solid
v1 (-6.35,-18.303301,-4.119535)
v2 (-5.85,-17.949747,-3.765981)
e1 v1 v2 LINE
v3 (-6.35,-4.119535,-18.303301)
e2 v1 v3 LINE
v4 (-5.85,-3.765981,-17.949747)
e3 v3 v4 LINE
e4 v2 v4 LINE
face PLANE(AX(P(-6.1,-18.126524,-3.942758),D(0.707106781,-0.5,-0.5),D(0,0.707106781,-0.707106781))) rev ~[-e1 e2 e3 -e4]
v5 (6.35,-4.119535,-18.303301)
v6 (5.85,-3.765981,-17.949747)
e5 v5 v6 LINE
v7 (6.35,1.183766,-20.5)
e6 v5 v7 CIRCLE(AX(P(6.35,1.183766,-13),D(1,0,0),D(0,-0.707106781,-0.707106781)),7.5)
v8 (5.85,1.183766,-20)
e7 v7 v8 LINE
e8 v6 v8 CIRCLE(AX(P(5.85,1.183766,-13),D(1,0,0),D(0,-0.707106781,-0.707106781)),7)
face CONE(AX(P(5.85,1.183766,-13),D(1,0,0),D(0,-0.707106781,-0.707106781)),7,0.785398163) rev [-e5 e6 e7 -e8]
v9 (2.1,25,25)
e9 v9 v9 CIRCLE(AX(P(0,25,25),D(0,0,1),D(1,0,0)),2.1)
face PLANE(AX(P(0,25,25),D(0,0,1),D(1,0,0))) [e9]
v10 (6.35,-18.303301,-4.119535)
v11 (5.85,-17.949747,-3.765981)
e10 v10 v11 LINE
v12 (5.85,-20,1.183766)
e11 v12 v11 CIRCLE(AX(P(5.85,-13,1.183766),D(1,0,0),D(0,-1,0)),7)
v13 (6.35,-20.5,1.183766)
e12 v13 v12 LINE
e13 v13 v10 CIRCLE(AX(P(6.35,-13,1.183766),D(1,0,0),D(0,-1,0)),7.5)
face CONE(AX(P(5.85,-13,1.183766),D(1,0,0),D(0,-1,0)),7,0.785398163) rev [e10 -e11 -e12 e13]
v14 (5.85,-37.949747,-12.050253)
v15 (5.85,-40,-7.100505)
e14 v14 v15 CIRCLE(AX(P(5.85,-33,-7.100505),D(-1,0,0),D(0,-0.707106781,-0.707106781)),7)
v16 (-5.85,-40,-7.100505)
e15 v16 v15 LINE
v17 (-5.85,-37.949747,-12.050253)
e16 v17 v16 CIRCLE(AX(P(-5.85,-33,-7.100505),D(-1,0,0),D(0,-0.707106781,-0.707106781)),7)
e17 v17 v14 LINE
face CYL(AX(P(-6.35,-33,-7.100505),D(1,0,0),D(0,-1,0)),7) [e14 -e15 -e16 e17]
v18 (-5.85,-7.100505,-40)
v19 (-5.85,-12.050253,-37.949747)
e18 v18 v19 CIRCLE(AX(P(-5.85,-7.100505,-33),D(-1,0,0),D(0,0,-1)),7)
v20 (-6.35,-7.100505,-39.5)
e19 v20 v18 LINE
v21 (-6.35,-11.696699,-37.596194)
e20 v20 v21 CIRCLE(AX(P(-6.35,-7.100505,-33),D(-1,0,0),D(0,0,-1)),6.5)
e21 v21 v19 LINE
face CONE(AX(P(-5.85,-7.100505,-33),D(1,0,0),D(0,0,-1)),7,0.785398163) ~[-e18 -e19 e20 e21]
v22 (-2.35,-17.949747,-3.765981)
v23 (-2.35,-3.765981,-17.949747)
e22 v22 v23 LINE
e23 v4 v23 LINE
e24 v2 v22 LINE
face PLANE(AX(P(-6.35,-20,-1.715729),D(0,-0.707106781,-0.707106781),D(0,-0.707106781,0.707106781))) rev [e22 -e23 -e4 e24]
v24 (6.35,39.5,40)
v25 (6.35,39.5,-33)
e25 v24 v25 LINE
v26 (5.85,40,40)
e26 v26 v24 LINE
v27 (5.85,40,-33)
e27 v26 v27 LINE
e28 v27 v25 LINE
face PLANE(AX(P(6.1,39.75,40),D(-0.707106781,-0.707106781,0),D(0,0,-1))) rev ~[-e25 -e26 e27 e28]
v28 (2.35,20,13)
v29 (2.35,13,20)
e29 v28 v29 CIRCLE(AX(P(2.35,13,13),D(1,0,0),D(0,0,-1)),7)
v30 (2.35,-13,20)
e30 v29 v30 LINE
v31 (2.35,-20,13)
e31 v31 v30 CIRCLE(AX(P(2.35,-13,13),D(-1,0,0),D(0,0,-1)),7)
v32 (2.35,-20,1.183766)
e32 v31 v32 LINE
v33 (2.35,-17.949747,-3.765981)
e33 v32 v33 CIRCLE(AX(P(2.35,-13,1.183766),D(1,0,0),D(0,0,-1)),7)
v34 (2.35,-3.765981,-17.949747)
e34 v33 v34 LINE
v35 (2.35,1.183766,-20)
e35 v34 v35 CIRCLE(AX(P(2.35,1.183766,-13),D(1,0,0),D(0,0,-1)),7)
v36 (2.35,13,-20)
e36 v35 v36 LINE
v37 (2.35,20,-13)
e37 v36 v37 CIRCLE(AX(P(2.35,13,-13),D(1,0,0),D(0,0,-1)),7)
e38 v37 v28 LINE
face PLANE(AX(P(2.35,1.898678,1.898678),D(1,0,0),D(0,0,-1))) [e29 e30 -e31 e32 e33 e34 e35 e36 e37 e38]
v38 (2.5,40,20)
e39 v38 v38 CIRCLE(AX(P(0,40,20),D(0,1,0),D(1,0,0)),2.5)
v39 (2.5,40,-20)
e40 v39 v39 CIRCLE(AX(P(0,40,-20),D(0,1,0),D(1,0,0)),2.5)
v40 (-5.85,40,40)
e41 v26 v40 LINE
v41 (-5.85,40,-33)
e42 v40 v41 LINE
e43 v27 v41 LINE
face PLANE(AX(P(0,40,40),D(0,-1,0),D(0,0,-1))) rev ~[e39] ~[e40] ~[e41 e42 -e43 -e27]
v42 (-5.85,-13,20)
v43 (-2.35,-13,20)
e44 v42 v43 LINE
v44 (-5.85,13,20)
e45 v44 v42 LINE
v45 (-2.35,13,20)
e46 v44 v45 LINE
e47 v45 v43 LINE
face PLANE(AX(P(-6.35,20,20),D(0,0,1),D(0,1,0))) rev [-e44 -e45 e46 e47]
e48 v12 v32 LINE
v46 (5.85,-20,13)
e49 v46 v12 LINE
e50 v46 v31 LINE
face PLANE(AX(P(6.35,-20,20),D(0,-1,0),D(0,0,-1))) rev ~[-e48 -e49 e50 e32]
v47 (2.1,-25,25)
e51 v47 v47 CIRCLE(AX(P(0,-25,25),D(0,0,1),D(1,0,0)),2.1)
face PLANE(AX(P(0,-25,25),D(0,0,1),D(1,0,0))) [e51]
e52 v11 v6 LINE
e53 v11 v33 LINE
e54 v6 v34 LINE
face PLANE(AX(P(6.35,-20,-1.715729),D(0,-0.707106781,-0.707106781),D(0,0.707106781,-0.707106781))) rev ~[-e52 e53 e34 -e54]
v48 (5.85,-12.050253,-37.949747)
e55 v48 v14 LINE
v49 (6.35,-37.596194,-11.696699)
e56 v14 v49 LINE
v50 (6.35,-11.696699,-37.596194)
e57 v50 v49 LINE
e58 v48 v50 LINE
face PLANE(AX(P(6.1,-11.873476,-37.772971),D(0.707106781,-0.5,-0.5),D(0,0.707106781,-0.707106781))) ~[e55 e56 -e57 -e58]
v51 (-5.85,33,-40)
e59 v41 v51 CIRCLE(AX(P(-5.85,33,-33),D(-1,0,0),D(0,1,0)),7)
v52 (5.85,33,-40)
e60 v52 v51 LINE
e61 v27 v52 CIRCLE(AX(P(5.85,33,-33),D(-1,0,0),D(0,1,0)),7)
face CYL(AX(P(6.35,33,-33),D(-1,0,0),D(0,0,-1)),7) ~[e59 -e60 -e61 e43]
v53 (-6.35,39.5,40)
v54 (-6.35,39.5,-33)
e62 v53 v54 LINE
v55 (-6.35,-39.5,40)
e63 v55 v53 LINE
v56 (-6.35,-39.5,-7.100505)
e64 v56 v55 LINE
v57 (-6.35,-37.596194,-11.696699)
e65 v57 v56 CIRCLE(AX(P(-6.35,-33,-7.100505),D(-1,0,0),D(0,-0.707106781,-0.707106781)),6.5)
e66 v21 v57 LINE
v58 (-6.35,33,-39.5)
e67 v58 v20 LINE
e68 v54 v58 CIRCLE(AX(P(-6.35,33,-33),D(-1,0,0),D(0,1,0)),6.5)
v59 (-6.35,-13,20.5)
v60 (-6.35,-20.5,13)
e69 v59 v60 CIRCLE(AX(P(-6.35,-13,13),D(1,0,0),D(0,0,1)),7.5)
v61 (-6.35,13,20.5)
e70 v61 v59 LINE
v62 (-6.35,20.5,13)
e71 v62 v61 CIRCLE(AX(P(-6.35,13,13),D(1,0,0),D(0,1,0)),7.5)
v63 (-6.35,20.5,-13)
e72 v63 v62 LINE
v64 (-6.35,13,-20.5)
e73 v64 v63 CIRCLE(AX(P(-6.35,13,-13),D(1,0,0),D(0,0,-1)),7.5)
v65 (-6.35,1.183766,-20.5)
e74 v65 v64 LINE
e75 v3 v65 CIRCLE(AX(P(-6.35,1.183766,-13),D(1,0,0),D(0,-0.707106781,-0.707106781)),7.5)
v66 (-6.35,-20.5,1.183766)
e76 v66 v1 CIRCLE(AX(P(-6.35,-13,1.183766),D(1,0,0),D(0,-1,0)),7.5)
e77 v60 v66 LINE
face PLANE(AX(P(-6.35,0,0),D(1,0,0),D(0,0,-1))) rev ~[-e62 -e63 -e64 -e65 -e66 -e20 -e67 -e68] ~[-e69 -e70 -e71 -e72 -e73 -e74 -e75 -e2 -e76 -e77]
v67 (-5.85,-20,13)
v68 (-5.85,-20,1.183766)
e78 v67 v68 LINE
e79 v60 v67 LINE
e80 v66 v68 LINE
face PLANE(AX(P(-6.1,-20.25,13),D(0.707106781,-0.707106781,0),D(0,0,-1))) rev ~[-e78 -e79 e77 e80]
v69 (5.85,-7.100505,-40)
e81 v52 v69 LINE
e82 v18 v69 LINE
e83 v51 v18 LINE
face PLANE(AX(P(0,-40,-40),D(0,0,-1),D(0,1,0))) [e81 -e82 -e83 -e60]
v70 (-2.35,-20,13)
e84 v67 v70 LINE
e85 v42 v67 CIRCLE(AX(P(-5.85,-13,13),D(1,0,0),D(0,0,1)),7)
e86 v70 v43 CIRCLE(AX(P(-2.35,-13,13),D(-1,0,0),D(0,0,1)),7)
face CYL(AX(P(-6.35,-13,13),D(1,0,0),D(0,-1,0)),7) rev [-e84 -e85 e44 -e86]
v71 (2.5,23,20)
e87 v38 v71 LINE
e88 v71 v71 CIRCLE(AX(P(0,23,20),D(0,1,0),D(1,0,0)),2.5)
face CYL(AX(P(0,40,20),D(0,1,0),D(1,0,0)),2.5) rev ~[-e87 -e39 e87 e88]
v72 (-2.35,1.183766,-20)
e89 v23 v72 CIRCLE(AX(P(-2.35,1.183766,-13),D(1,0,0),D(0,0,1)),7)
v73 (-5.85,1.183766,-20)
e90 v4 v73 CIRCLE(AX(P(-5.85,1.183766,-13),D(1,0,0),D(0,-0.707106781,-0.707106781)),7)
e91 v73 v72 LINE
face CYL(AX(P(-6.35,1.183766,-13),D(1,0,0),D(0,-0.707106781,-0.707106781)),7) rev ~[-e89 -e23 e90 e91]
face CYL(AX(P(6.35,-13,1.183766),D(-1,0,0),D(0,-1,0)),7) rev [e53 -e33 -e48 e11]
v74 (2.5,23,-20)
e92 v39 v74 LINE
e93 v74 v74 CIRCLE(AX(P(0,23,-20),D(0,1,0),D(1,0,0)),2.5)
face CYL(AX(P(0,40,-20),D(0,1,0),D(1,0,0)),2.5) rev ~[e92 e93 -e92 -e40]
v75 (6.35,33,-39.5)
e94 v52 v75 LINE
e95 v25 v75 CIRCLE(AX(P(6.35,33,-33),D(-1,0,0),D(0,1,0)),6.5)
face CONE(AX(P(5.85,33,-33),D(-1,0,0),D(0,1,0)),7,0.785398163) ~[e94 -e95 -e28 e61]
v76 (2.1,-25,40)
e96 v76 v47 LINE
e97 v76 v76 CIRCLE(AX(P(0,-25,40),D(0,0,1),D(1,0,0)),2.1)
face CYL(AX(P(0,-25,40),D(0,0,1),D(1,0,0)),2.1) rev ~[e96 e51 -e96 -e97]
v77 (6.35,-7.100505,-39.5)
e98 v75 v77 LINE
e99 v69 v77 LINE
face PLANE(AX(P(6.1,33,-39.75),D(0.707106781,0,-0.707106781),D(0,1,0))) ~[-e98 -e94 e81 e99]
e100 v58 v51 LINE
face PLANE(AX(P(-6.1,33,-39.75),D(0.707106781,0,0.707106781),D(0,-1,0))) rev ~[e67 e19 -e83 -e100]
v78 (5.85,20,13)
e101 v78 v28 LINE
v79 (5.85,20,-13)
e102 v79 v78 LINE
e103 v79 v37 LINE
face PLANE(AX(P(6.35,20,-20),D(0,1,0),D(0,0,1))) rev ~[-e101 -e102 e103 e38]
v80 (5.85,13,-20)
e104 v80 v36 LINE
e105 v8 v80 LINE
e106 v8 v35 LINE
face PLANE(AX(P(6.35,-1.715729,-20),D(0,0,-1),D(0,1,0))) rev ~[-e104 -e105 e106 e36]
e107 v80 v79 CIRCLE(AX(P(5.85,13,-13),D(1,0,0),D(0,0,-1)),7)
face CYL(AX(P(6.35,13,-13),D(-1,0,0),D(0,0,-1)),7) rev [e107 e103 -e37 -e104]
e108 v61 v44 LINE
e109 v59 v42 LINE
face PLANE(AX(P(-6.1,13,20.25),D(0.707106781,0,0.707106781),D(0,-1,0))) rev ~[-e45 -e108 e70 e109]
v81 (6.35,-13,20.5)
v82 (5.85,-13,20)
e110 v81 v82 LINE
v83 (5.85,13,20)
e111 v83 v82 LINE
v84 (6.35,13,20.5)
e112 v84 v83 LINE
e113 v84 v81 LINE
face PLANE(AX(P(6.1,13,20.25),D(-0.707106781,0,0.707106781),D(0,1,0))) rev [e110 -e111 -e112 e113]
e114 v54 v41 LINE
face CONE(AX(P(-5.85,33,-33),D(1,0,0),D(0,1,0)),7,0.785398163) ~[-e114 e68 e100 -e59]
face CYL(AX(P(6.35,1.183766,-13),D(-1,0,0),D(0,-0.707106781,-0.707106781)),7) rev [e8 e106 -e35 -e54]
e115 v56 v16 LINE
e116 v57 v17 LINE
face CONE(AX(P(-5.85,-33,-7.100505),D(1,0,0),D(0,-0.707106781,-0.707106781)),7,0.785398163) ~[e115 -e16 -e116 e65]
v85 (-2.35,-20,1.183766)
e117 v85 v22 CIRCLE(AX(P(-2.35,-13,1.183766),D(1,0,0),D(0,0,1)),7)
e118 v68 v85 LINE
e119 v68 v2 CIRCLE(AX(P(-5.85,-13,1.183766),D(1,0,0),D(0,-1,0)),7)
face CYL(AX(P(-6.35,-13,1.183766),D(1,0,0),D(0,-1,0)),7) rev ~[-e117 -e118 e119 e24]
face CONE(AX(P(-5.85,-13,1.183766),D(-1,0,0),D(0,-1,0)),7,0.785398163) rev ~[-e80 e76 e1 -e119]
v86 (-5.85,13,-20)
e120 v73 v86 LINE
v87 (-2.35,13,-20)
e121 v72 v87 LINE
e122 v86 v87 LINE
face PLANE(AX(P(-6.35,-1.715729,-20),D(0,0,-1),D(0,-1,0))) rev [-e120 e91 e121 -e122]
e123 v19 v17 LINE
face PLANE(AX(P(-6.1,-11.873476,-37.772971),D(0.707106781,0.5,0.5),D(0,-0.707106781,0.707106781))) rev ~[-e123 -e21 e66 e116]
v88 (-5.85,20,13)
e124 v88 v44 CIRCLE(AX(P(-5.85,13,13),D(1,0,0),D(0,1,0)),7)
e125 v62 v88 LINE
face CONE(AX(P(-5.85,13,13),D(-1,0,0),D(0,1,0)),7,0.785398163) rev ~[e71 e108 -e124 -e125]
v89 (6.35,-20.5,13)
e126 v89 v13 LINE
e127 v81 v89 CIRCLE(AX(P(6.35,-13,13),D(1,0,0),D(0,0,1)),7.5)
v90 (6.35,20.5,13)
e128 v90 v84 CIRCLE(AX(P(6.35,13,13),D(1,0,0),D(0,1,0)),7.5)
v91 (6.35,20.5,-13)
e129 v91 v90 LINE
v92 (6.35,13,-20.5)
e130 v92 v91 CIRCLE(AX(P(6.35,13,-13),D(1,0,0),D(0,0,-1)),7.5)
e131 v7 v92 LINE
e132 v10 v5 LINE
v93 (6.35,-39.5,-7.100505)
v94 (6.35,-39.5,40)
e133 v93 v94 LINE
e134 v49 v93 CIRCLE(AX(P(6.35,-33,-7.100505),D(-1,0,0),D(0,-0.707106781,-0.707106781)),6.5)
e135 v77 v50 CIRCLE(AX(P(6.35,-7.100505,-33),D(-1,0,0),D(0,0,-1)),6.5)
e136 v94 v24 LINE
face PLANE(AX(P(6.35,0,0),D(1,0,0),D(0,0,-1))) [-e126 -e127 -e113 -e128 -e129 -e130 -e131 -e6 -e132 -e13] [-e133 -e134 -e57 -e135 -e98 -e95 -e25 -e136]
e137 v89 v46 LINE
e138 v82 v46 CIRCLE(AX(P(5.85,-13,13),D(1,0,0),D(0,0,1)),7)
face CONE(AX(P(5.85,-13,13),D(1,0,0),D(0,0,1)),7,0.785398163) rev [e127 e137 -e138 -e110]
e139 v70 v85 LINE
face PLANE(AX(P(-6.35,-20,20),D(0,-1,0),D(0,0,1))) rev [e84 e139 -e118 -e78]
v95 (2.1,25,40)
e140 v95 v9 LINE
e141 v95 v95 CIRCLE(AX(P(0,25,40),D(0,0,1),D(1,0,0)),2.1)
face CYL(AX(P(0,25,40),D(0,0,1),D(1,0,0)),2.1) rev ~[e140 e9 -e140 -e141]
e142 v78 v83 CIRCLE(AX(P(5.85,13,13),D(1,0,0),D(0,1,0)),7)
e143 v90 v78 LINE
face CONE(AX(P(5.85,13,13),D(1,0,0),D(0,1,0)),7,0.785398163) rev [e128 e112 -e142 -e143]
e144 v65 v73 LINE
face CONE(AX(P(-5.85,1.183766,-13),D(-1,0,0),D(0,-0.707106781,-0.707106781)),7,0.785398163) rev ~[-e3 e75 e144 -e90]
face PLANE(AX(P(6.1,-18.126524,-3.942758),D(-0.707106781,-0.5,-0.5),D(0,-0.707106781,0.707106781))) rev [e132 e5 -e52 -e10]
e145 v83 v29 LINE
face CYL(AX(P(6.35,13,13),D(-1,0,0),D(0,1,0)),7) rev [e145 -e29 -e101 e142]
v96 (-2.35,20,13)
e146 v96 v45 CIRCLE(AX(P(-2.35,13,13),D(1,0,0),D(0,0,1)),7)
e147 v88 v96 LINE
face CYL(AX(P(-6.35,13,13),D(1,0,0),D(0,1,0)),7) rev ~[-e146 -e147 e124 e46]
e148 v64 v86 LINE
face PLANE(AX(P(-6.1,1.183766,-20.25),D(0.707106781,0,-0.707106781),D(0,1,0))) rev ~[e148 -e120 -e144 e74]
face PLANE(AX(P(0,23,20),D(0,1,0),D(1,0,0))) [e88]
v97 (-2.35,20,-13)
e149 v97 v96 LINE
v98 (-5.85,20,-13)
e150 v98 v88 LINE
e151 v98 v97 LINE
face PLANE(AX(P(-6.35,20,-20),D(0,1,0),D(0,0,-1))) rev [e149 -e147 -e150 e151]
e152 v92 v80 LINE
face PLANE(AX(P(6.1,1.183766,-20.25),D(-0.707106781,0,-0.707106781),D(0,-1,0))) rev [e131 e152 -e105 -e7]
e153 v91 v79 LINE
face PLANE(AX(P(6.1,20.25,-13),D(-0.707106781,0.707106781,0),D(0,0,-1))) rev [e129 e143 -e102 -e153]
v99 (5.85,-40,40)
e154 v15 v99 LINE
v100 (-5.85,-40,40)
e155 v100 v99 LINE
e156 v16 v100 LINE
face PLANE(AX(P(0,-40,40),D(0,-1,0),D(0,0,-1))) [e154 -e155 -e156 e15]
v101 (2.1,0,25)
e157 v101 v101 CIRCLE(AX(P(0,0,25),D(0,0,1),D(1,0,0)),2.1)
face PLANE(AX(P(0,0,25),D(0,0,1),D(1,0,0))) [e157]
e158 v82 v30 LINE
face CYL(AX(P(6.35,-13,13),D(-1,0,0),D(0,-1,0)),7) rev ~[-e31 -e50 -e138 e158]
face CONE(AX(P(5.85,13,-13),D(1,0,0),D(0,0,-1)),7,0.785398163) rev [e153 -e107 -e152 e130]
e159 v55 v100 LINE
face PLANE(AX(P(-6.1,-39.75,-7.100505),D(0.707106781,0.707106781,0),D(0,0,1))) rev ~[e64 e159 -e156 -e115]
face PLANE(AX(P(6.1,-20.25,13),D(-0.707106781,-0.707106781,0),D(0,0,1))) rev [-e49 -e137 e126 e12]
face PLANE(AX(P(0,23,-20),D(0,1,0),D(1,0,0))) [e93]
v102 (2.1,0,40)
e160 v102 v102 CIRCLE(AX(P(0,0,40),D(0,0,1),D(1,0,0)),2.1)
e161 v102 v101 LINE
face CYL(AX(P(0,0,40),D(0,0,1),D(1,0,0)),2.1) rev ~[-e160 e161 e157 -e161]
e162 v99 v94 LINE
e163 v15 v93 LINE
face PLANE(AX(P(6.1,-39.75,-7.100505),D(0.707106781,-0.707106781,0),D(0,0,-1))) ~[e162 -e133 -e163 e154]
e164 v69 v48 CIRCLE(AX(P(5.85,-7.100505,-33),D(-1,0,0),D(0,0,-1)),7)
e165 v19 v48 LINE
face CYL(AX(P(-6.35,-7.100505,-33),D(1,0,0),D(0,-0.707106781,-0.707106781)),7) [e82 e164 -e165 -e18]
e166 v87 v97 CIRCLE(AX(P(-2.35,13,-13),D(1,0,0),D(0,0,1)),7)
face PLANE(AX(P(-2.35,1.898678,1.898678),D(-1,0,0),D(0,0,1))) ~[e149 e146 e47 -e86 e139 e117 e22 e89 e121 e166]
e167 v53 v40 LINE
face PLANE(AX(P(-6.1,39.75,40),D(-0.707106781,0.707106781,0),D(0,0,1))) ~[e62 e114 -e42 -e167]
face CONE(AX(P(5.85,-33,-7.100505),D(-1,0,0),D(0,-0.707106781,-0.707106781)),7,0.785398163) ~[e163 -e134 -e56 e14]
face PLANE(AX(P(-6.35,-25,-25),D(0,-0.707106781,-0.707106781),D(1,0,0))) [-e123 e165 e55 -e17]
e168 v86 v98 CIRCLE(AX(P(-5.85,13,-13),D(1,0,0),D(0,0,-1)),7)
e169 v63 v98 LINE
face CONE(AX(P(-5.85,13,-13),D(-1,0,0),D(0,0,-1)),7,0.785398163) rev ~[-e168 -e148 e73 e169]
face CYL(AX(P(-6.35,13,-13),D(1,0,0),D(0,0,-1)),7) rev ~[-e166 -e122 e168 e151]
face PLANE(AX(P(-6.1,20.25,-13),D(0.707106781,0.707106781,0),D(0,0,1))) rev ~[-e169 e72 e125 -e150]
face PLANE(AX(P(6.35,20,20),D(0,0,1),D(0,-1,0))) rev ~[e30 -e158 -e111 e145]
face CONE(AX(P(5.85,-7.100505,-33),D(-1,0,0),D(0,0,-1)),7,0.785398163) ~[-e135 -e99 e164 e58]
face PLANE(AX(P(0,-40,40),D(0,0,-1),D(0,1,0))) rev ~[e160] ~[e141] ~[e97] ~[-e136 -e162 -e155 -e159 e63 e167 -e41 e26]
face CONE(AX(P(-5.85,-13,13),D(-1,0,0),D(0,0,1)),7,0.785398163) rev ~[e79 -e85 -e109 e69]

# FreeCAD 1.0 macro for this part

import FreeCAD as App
import Part
import Sketcher

V = App.Vector


def edges_at(feature, points):
    """Names of the edges that pass closest to the given points."""
    edges = feature.Shape.Edges
    near = lambda p: min(range(len(edges)), key=lambda i: edges[i].distToShape(Part.Vertex(*p))[0])
    return sorted({f"Edge{near(p) + 1}" for p in points})


def add_polygon(sketch, points):
    """Adds a closed chain of lines whose ends are joined by coincident constraints."""
    first, n = sketch.GeometryCount, len(points)
    for a, b in zip(points, points[1:] + points[:1]):
        sketch.addGeometry(Part.LineSegment(App.Vector(*a, 0), App.Vector(*b, 0)), False)
    for i in range(n):
        sketch.addConstraint(Sketcher.Constraint("Coincident", first + i, 2, first + (i + 1) % n, 1))

doc = App.newDocument("Part")
body = doc.addObject("PartDesign::Body", "Body")

# Sketch on YZ plane
sketch1 = body.newObject("Sketcher::SketchObject", "Sketch")
sketch1.AttachmentSupport = (doc.getObject("YZ_Plane"), [""])
sketch1.MapMode = "FlatFace"
add_polygon(sketch1, [(40, 40), (-40, 40), (-40, -40), (40, -40)])  # lines 0-3
sketch1.addConstraint([
    Sketcher.Constraint("Horizontal", 0),
    Sketcher.Constraint("Vertical", 1),
    Sketcher.Constraint("Horizontal", 2),
    Sketcher.Constraint("Vertical", 3),
    Sketcher.Constraint("Symmetric", 0, 2, 2, 2, -1, 1),
    Sketcher.Constraint("Equal", 2, 1),
    Sketcher.Constraint("DistanceX", 0, 2, 0, 1, 80.0),
])
pad1 = body.newObject("PartDesign::Pad", "Pad")
pad1.Profile = sketch1
pad1.Length = 12.7
pad1.Midplane = True
doc.recompute()

chamfer = body.newObject("PartDesign::Chamfer", "Chamfer")
chamfer.Base = (pad1, edges_at(pad1, [(0, -40, -40)]))
chamfer.Size = 30

# Sketch on XZ plane
sketch2 = body.newObject("Sketcher::SketchObject", "Sketch001")
sketch2.AttachmentSupport = (doc.getObject("XZ_Plane"), [""])
sketch2.MapMode = "FlatFace"
sketch2.AttachmentOffset = App.Placement(V(0, 0, -40), App.Rotation())
sketch2.addGeometry([
    Part.Circle(V(0, -20, 0), V(0, 0, 1), 2.5),
    Part.Circle(V(0, 20, 0), V(0, 0, 1), 2.5),
], False)
sketch2.addConstraint([
    Sketcher.Constraint("Equal", 0, 1),
    Sketcher.Constraint("Symmetric", 0, 3, 1, 3, -1, 1),
    Sketcher.Constraint("PointOnObject", 0, 3, -2),
    Sketcher.Constraint("Diameter", 0, 5.0),
    Sketcher.Constraint("DistanceY", 0, 3, -1, 1, 20.0),
])
pocket1 = body.newObject("PartDesign::Pocket", "Pocket")
pocket1.Profile = sketch2
pocket1.Length = 17
pocket1.Reversed = True

# Sketch on XY plane
sketch3 = body.newObject("Sketcher::SketchObject", "Sketch002")
sketch3.AttachmentSupport = (doc.getObject("XY_Plane"), [""])
sketch3.MapMode = "FlatFace"
sketch3.AttachmentOffset = App.Placement(V(0, 0, 40), App.Rotation())
sketch3.addGeometry([
    Part.Circle(V(0, 25, 0), V(0, 0, 1), 2.1),
    Part.Circle(V(0, -25, 0), V(0, 0, 1), 2.1),
    Part.Circle(V(0, 0, 0), V(0, 0, 1), 2.1),
], False)
sketch3.addConstraint([
    Sketcher.Constraint("Coincident", 2, 3, -1, 1),
    Sketcher.Constraint("Equal", 0, 1),
    Sketcher.Constraint("Equal", 1, 2),
    Sketcher.Constraint("Symmetric", 0, 3, 1, 3, -1, 1),
    Sketcher.Constraint("PointOnObject", 0, 3, -2),
    Sketcher.Constraint("Diameter", 0, 4.2),
    Sketcher.Constraint("DistanceY", -1, 1, 0, 3, 25.0),
])
pocket2 = body.newObject("PartDesign::Pocket", "Pocket001")
pocket2.Profile = sketch3
pocket2.Length = 15

# Sketch on YZ plane
sketch4 = body.newObject("Sketcher::SketchObject", "Sketch003")
sketch4.AttachmentSupport = (doc.getObject("YZ_Plane"), [""])
sketch4.MapMode = "FlatFace"
sketch4.AttachmentOffset = App.Placement(V(0, 0, 6.35), App.Rotation())
add_polygon(sketch4, [(-20, 20), (-20, -2), (-2, -20), (20, -20), (20, 20)])  # lines 0-4
sketch4.addConstraint([
    Sketcher.Constraint("Vertical", 0),
    Sketcher.Constraint("Horizontal", 2),
    Sketcher.Constraint("Vertical", 3),
    Sketcher.Constraint("Horizontal", 4),
    Sketcher.Constraint("Symmetric", 2, 2, 4, 2, -1, 1),
    Sketcher.Constraint("Equal", 2, 0),
    Sketcher.Constraint("Equal", 4, 3),
    Sketcher.Constraint("DistanceX", 4, 2, 4, 1, 40.0),
    Sketcher.Constraint("DistanceX", 2, 1, 2, 2, 21.715729),
])
pocket3 = body.newObject("PartDesign::Pocket", "Pocket002")
pocket3.Profile = sketch4
pocket3.Length = 4
doc.recompute()

fillet = body.newObject("PartDesign::Fillet", "Fillet")
fillet.Base = (pocket3, edges_at(pocket3, [
    (4.35, -20, 20),
    (4.35, 20, 20),
    (4.35, 20, -20),
    (4.35, -1.716, -20),
    (4.35, -20, -1.716),
]))
fillet.Radius = 7
doc.recompute()

mirrored = body.newObject("PartDesign::Mirrored", "Mirrored")
mirrored.Originals = [pocket3]
mirrored.MirrorPlane = (doc.getObject("YZ_Plane"), [""])
body.Tip = mirrored
doc.recompute()

fillet2 = body.newObject("PartDesign::Fillet", "Fillet001")
fillet2.Base = (mirrored, edges_at(mirrored, [
    (-4.35, -20, 20),
    (-4.35, 20, 20),
    (-4.35, 20, -20),
    (-4.35, -1.716, -20),
    (-4.35, -20, -1.716),
]))
fillet2.Radius = 7
doc.recompute()

fillet3 = body.newObject("PartDesign::Fillet", "Fillet002")
fillet3.Base = (fillet2, edges_at(fillet2, [(0, -10, -40), (0, -40, -10), (0, 40, -40)]))
fillet3.Radius = 7
doc.recompute()

chamfer2 = body.newObject("PartDesign::Chamfer", "Chamfer001")
chamfer2.Base = (fillet3, edges_at(fillet3, [
    (-6.35, 0, 20),
    (-6.35, -20, 7.092),
    (-6.35, -10.858, -10.858),
    (-6.35, 7.092, -20),
    (-6.35, 20, 0),
    (-6.35, -17.95, 17.95),
    (-6.35, -19.467, -1.495),
    (-6.35, 17.95, -17.95),
    (-6.35, 17.95, 17.95),
    (-6.35, -1.495, -19.467),
    (6.35, -25, -25),
    (6.35, 12.95, -40),
    (6.35, 40, 3.5),
    (6.35, 37.95, -37.95),
    (6.35, -9.779, -39.467),
    (6.35, -39.467, -9.779),
    (-6.35, -25, -25),
    (-6.35, 12.95, -40),
    (-6.35, 40, 3.5),
    (-6.35, 37.95, -37.95),
    (-6.35, -9.779, -39.467),
    (-6.35, -39.467, -9.779),
    (6.35, -20, 7.092),
    (-6.35, -40, 16.45),
    (6.35, 0, 20),
    (6.35, -10.858, -10.858),
    (6.35, 20, 0),
    (6.35, 7.092, -20),
    (6.35, -17.95, 17.95),
    (6.35, -19.467, -1.495),
    (6.35, 17.95, -17.95),
    (6.35, 17.95, 17.95),
    (6.35, -1.495, -19.467),
    (6.35, -40, 16.45),
]))
chamfer2.Size = 0.5

doc.recompute()
